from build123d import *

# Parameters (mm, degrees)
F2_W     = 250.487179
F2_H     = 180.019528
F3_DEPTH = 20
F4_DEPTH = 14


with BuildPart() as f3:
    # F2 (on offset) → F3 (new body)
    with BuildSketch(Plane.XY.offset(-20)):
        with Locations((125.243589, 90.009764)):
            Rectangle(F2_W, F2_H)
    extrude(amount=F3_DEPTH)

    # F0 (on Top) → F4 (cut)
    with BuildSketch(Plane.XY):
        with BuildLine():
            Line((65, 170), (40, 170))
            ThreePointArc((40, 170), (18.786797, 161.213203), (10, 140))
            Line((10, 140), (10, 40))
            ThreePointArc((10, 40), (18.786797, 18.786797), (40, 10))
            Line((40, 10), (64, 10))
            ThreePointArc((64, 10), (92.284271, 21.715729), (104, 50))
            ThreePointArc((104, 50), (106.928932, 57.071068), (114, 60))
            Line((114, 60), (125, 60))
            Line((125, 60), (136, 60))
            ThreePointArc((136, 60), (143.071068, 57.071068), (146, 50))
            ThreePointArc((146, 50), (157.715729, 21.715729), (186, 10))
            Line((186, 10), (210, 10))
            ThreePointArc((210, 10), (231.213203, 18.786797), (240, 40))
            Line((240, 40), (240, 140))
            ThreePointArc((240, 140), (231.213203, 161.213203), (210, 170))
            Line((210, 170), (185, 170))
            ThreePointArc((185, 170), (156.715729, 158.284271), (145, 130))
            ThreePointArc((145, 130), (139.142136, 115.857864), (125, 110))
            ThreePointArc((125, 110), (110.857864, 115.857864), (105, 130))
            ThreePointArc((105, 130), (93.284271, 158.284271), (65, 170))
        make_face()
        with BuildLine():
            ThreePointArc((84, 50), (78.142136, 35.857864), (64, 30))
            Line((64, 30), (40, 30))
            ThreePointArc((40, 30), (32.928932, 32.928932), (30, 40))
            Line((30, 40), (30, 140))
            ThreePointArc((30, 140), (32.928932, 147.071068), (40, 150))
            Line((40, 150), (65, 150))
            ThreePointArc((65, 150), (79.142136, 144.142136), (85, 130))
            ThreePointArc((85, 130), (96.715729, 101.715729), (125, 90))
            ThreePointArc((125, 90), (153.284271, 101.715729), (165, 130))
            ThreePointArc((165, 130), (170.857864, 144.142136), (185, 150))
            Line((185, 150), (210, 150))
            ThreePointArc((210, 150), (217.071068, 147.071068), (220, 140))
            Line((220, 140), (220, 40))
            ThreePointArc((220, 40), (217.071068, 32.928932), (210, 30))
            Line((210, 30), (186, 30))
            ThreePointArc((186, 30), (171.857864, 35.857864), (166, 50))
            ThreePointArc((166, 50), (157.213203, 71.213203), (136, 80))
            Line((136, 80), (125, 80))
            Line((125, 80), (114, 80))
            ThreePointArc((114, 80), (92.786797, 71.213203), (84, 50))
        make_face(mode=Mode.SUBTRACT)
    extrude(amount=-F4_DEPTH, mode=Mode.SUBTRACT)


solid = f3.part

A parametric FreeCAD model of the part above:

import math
import FreeCAD as App
import Part
import Sketcher


def add_polygon(sketch, points):
    """Adds a closed chain of lines whose ends are joined by coincident constraints."""
    first, n = sketch.GeometryCount, len(points)
    for a, b in zip(points, points[1:] + points[:1]):
        sketch.addGeometry(Part.LineSegment(App.Vector(*a, 0), App.Vector(*b, 0)), False)
    for i in range(n):
        sketch.addConstraint(Sketcher.Constraint("Coincident", first + i, 2, first + (i + 1) % n, 1))

doc = App.newDocument("Part")
params = doc.addObject("Spreadsheet::Sheet", "Params")
for row, (alias, value) in enumerate([
    ("pad1_length", "20 mm"),
    ("sketch2_radius", "30.000001 mm"),
    ("sketch2_radius2", "40.000001 mm"),
    ("sketch2_radius3", "9.999999 mm"),
    ("sketch2_width", "25 mm"),
    ("sketch2_width2", "24 mm"),
    ("pocket1_length", "14 mm"),
], start=1):
    params.set(f"A{row}", alias)
    params.set(f"B{row}", "=" + value)
    params.setAlias(f"B{row}", alias)

body = doc.addObject("PartDesign::Body", "Body")

# Sketch on XY plane
sketch1 = body.newObject("Sketcher::SketchObject", "Sketch")
sketch1.AttachmentSupport = (doc.getObject("XY_Plane"), [""])
sketch1.MapMode = "FlatFace"
sketch1.AttachmentOffset = App.Placement(App.Vector(0, 0, -20), App.Rotation())
add_polygon(sketch1, [(0, 180), (0, 0), (250, 0), (250, 180)])  # lines 0-3
sketch1.addConstraint([
    Sketcher.Constraint("Vertical", 0),
    Sketcher.Constraint("Horizontal", 1),
    Sketcher.Constraint("Vertical", 2),
    Sketcher.Constraint("Horizontal", 3),
    Sketcher.Constraint("Coincident", 0, 2, -1, 1),
    Sketcher.Constraint("DistanceX", 1, 1, 1, 2, 250.487179),
    Sketcher.Constraint("DistanceY", 0, 2, 0, 1, 180.019528),
])
pad1 = body.newObject("PartDesign::Pad", "Pad")
pad1.Profile = sketch1
pad1.setExpression("Length", "Params.pad1_length")

# Sketch on XY plane
sketch2 = body.newObject("Sketcher::SketchObject", "Sketch001")
sketch2.AttachmentSupport = (doc.getObject("XY_Plane"), [""])
sketch2.MapMode = "FlatFace"
sketch2.addGeometry([
    Part.LineSegment(App.Vector(65, 170, 0), App.Vector(40, 170, 0)),  # 0
    Part.ArcOfCircle(Part.Circle(App.Vector(40, 140, 0), App.Vector(0, 0, 1), 30), math.radians(90), math.radians(180)),  # 1
    Part.LineSegment(App.Vector(10, 140, 0), App.Vector(10, 40, 0)),  # 2
    Part.ArcOfCircle(Part.Circle(App.Vector(40, 40, 0), App.Vector(0, 0, 1), 30), math.radians(-180), math.radians(-90)),  # 3
    Part.LineSegment(App.Vector(40, 10, 0), App.Vector(64, 10, 0)),  # 4
    Part.ArcOfCircle(Part.Circle(App.Vector(64, 50, 0), App.Vector(0, 0, 1), 40), math.radians(-90), math.radians(0)),  # 5
    Part.ArcOfCircle(Part.Circle(App.Vector(114, 50, 0), App.Vector(0, 0, 1), 10), math.radians(90), math.radians(180)),  # 6
    Part.LineSegment(App.Vector(114, 60, 0), App.Vector(136, 60, 0)),  # 7
    Part.ArcOfCircle(Part.Circle(App.Vector(136, 50, 0), App.Vector(0, 0, 1), 10), math.radians(0), math.radians(90)),  # 8
    Part.ArcOfCircle(Part.Circle(App.Vector(186, 50, 0), App.Vector(0, 0, 1), 40), math.radians(-180), math.radians(-90)),  # 9
    Part.LineSegment(App.Vector(186, 10, 0), App.Vector(210, 10, 0)),  # 10
    Part.ArcOfCircle(Part.Circle(App.Vector(210, 40, 0), App.Vector(0, 0, 1), 30), math.radians(-90), math.radians(0)),  # 11
    Part.LineSegment(App.Vector(240, 40, 0), App.Vector(240, 140, 0)),  # 12
    Part.ArcOfCircle(Part.Circle(App.Vector(210, 140, 0), App.Vector(0, 0, 1), 30), math.radians(0), math.radians(90)),  # 13
    Part.LineSegment(App.Vector(210, 170, 0), App.Vector(185, 170, 0)),  # 14
    Part.ArcOfCircle(Part.Circle(App.Vector(185, 130, 0), App.Vector(0, 0, 1), 40), math.radians(90), math.radians(180)),  # 15
    Part.ArcOfCircle(Part.Circle(App.Vector(125, 130, 0), App.Vector(0, 0, 1), 20), math.radians(-90), math.radians(0)),  # 16
    Part.ArcOfCircle(Part.Circle(App.Vector(125, 130, 0), App.Vector(0, 0, 1), 20), math.radians(180), math.radians(270)),  # 17
    Part.ArcOfCircle(Part.Circle(App.Vector(65, 130, 0), App.Vector(0, 0, 1), 40), math.radians(0), math.radians(90)),  # 18
    Part.ArcOfCircle(Part.Circle(App.Vector(114, 50, 0), App.Vector(0, 0, 1), 30), math.radians(90), math.radians(180)),  # 19
    Part.ArcOfCircle(Part.Circle(App.Vector(64, 50, 0), App.Vector(0, 0, 1), 20), math.radians(-90), math.radians(0)),  # 20
    Part.LineSegment(App.Vector(64, 30, 0), App.Vector(40, 30, 0)),  # 21
    Part.ArcOfCircle(Part.Circle(App.Vector(40, 40, 0), App.Vector(0, 0, 1), 10), math.radians(180), math.radians(270)),  # 22
    Part.LineSegment(App.Vector(30, 40, 0), App.Vector(30, 140, 0)),  # 23
    Part.ArcOfCircle(Part.Circle(App.Vector(40, 140, 0), App.Vector(0, 0, 1), 10), math.radians(90), math.radians(180)),  # 24
    Part.LineSegment(App.Vector(40, 150, 0), App.Vector(65, 150, 0)),  # 25
    Part.ArcOfCircle(Part.Circle(App.Vector(65, 130, 0), App.Vector(0, 0, 1), 20), math.radians(0), math.radians(90)),  # 26
    Part.ArcOfCircle(Part.Circle(App.Vector(125, 130, 0), App.Vector(0, 0, 1), 40), math.radians(-180), math.radians(-90)),  # 27
    Part.ArcOfCircle(Part.Circle(App.Vector(125, 130, 0), App.Vector(0, 0, 1), 40), math.radians(-90), math.radians(0)),  # 28
    Part.ArcOfCircle(Part.Circle(App.Vector(185, 130, 0), App.Vector(0, 0, 1), 20), math.radians(90), math.radians(180)),  # 29
    Part.LineSegment(App.Vector(185, 150, 0), App.Vector(210, 150, 0)),  # 30
    Part.ArcOfCircle(Part.Circle(App.Vector(210, 140, 0), App.Vector(0, 0, 1), 10), math.radians(0), math.radians(90)),  # 31
    Part.LineSegment(App.Vector(220, 140, 0), App.Vector(220, 40, 0)),  # 32
    Part.ArcOfCircle(Part.Circle(App.Vector(210, 40, 0), App.Vector(0, 0, 1), 10), math.radians(-90), math.radians(0)),  # 33
    Part.LineSegment(App.Vector(210, 30, 0), App.Vector(186, 30, 0)),  # 34
    Part.ArcOfCircle(Part.Circle(App.Vector(186, 50, 0), App.Vector(0, 0, 1), 20), math.radians(180), math.radians(270)),  # 35
    Part.ArcOfCircle(Part.Circle(App.Vector(136, 50, 0), App.Vector(0, 0, 1), 30), math.radians(0), math.radians(90)),  # 36
    Part.LineSegment(App.Vector(136, 80, 0), App.Vector(114, 80, 0)),  # 37
], False)
sketch2.addConstraint([
    Sketcher.Constraint("Tangent", 0, 2, 1, 1),
    Sketcher.Constraint("Tangent", 1, 2, 2, 1),
    Sketcher.Constraint("Tangent", 2, 2, 3, 1),
    Sketcher.Constraint("Tangent", 3, 2, 4, 1),
    Sketcher.Constraint("Tangent", 4, 2, 5, 1),
    Sketcher.Constraint("Tangent", 5, 2, 6, 2),
    Sketcher.Constraint("Tangent", 6, 1, 7, 1),
    Sketcher.Constraint("Tangent", 7, 2, 8, 2),
    Sketcher.Constraint("Tangent", 8, 1, 9, 1),
    Sketcher.Constraint("Tangent", 9, 2, 10, 1),
    Sketcher.Constraint("Tangent", 10, 2, 11, 1),
    Sketcher.Constraint("Tangent", 11, 2, 12, 1),
    Sketcher.Constraint("Tangent", 12, 2, 13, 1),
    Sketcher.Constraint("Tangent", 13, 2, 14, 1),
    Sketcher.Constraint("Tangent", 14, 2, 15, 1),
    Sketcher.Constraint("Tangent", 15, 2, 16, 2),
    Sketcher.Constraint("Tangent", 16, 1, 17, 2),
    Sketcher.Constraint("Tangent", 17, 1, 18, 1),
    Sketcher.Constraint("Tangent", 18, 2, 0, 1),
    Sketcher.Constraint("Tangent", 19, 2, 20, 2),
    Sketcher.Constraint("Tangent", 20, 1, 21, 1),
    Sketcher.Constraint("Tangent", 21, 2, 22, 2),
    Sketcher.Constraint("Tangent", 22, 1, 23, 1),
    Sketcher.Constraint("Tangent", 23, 2, 24, 2),
    Sketcher.Constraint("Tangent", 24, 1, 25, 1),
    Sketcher.Constraint("Tangent", 25, 2, 26, 2),
    Sketcher.Constraint("Tangent", 26, 1, 27, 1),
    Sketcher.Constraint("Tangent", 27, 2, 28, 1),
    Sketcher.Constraint("Tangent", 28, 2, 29, 2),
    Sketcher.Constraint("Tangent", 29, 1, 30, 1),
    Sketcher.Constraint("Tangent", 30, 2, 31, 2),
    Sketcher.Constraint("Tangent", 31, 1, 32, 1),
    Sketcher.Constraint("Tangent", 32, 2, 33, 2),
    Sketcher.Constraint("Tangent", 33, 1, 34, 1),
    Sketcher.Constraint("Tangent", 34, 2, 35, 2),
    Sketcher.Constraint("Tangent", 35, 1, 36, 1),
    Sketcher.Constraint("Tangent", 36, 2, 37, 1),
    Sketcher.Constraint("Tangent", 37, 2, 19, 1),
    Sketcher.Constraint("Horizontal", 0),
    Sketcher.Constraint("Vertical", 2),
    Sketcher.Constraint("Horizontal", 4),
    Sketcher.Constraint("Horizontal", 7),
    Sketcher.Constraint("Horizontal", 10),
    Sketcher.Constraint("Vertical", 12),
    Sketcher.Constraint("Horizontal", 14),
    Sketcher.Constraint("Horizontal", 21),
    Sketcher.Constraint("Vertical", 23),
    Sketcher.Constraint("Horizontal", 25),
    Sketcher.Constraint("Horizontal", 30),
    Sketcher.Constraint("Vertical", 32),
    Sketcher.Constraint("Horizontal", 34),
    Sketcher.Constraint("Horizontal", 37),
    Sketcher.Constraint("Coincident", 19, 3, 6, 3),
    Sketcher.Constraint("Coincident", 20, 3, 5, 3),
    Sketcher.Constraint("Coincident", 22, 3, 3, 3),
    Sketcher.Constraint("Coincident", 24, 3, 1, 3),
    Sketcher.Constraint("Coincident", 26, 3, 18, 3),
    Sketcher.Constraint("Coincident", 27, 3, 16, 3),
    Sketcher.Constraint("Coincident", 29, 3, 15, 3),
    Sketcher.Constraint("Coincident", 31, 3, 13, 3),
    Sketcher.Constraint("Coincident", 33, 3, 11, 3),
    Sketcher.Constraint("Coincident", 35, 3, 9, 3),
    Sketcher.Constraint("Coincident", 36, 3, 8, 3),
    Sketcher.Constraint("Equal", 1, 3),
    Sketcher.Constraint("Equal", 6, 8),
    Sketcher.Constraint("Equal", 5, 9),
    Sketcher.Constraint("Equal", 3, 11),
    Sketcher.Constraint("Equal", 11, 13),
    Sketcher.Constraint("Equal", 9, 15),
    Sketcher.Constraint("Equal", 16, 17),
    Sketcher.Constraint("Equal", 15, 18),
    Sketcher.Constraint("Equal", 13, 19),
    Sketcher.Constraint("Equal", 17, 20),
    Sketcher.Constraint("Horizontal", 5, 3, 6, 3),
    Sketcher.Constraint("Horizontal", 8, 3, 9, 3),
    Sketcher.Constraint("Horizontal", 1, 3, 13, 3),
    Sketcher.Constraint("Horizontal", 15, 3, 16, 3),
    Sketcher.Constraint("Vertical", 28, 3, 16, 1),
    Sketcher.Constraint("Vertical", 16, 1, 27, 2),
    Sketcher.Constraint("Equal", 4, 10),
    Sketcher.Constraint("Equal", 0, 14),
    Sketcher.Constraint("Radius", 1, 30.000001),
    Sketcher.Constraint("Radius", 5, 40.000001),
    Sketcher.Constraint("Radius", 6, 9.999999),
    Sketcher.Constraint("DistanceX", 0, 2, 0, 1, 25.0),
    Sketcher.Constraint("DistanceX", 4, 1, 4, 2, 24.0),
    Sketcher.Constraint("DistanceY", 2, 2, 2, 1, 100.0),
    Sketcher.Constraint("DistanceX", -1, 1, 1, 3, 40.000001),
    Sketcher.Constraint("DistanceY", -1, 1, 1, 3, 139.999999),
])
sketch2.setExpression("Constraints[81]", "Params.sketch2_radius")
sketch2.setExpression("Constraints[82]", "Params.sketch2_radius2")
sketch2.setExpression("Constraints[83]", "Params.sketch2_radius3")
sketch2.setExpression("Constraints[84]", "Params.sketch2_width")
sketch2.setExpression("Constraints[85]", "Params.sketch2_width2")
pocket1 = body.newObject("PartDesign::Pocket", "Pocket")
pocket1.Profile = sketch2
pocket1.setExpression("Length", "Params.pocket1_length")

doc.recompute()
